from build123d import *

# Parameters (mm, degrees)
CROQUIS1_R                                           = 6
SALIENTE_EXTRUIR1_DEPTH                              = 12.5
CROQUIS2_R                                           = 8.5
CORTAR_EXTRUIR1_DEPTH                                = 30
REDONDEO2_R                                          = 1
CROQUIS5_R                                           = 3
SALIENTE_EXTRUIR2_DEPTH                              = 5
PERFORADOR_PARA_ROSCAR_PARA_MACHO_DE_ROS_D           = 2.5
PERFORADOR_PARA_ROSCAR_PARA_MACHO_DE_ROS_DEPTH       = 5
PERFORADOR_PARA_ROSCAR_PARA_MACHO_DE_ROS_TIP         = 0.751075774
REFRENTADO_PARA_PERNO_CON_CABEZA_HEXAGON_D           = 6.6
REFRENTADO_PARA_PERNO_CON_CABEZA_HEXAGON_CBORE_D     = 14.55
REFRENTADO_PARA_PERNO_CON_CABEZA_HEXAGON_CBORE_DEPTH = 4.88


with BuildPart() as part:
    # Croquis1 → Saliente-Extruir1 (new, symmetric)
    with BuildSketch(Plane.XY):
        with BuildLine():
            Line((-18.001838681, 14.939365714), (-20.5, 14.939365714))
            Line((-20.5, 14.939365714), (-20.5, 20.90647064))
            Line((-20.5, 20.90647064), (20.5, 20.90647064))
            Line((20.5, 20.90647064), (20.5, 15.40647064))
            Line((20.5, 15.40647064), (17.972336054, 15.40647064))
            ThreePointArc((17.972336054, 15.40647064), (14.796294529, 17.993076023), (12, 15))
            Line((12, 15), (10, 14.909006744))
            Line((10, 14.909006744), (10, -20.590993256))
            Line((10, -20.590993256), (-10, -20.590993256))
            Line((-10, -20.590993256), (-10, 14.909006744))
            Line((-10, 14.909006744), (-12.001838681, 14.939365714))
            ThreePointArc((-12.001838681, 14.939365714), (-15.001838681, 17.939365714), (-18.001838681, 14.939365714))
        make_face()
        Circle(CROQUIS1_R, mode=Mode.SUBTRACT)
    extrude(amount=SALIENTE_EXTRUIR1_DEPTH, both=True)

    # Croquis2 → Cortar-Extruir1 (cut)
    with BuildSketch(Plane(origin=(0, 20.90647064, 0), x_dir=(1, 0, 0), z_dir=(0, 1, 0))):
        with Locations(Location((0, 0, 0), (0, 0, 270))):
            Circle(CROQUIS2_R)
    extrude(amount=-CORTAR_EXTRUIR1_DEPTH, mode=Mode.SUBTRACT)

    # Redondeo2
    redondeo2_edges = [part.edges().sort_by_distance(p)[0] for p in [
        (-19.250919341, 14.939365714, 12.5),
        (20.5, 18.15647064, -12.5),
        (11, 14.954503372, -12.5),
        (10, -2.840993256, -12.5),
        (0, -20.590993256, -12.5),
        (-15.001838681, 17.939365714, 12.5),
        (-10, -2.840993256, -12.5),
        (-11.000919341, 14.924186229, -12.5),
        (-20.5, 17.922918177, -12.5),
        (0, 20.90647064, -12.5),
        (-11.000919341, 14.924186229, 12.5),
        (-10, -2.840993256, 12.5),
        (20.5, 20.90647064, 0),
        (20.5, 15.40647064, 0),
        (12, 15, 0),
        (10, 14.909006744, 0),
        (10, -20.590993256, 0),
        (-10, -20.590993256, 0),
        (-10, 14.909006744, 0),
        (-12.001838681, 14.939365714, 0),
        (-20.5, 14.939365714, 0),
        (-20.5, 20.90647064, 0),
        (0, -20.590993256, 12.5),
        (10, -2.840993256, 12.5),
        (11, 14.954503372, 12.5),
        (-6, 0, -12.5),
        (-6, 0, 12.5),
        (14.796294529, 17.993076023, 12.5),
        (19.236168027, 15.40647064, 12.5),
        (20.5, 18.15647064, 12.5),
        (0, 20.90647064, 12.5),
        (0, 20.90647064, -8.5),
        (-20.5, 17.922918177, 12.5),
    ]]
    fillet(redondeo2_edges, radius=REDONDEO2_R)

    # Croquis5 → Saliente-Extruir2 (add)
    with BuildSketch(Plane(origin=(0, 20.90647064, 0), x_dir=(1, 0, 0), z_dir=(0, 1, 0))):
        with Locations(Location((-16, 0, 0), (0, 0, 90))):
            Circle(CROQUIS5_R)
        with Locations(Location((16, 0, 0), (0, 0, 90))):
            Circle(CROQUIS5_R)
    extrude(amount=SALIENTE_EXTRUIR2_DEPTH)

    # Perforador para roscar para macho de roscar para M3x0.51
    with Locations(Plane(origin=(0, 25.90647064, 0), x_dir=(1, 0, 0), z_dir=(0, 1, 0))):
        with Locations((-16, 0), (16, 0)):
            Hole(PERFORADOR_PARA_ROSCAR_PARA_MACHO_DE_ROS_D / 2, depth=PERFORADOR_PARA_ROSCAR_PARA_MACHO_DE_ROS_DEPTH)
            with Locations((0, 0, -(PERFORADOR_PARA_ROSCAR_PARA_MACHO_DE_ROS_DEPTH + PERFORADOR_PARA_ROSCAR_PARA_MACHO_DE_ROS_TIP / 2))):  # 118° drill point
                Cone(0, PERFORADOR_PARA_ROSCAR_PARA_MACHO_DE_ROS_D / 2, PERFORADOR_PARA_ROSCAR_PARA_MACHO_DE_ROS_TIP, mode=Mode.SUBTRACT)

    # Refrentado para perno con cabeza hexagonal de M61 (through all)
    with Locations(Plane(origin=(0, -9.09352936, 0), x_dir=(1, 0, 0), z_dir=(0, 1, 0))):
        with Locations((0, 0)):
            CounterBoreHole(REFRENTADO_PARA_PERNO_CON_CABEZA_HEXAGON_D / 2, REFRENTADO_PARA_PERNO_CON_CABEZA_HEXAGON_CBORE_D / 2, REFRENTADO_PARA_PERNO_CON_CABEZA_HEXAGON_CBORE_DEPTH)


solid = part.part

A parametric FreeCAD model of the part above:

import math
import FreeCAD as App
import Part
import Sketcher
from FreeCAD import Vector


def edges_at(feature, points):
    """Names of the edges that pass closest to the given points."""
    edges = feature.Shape.Edges
    near = lambda p: min(range(len(edges)), key=lambda i: edges[i].distToShape(Part.Vertex(*p))[0])
    return sorted({f"Edge{near(p) + 1}" for p in points})

doc = App.newDocument("Part")
body = doc.addObject("PartDesign::Body", "Body")

sketch1 = doc.addObject("Sketcher::SketchObject", "Sketch")
body.addObject(sketch1)
sketch1.AttachmentSupport = (doc.XY_Plane, [""])
sketch1.MapMode = "FlatFace"
sketch1.addGeometry(Part.LineSegment(Vector(-20.5, 14.939366, 0), Vector(-18.001839, 14.939366, 0)), False)
sketch1.addGeometry(Part.ArcOfCircle(Part.Circle(Vector(-15.001839, 14.939366, 0), Vector(0, 0, 1), 3), math.radians(0), math.radians(180)), False)
sketch1.addGeometry(Part.LineSegment(Vector(-12.001839, 14.939366, 0), Vector(-10, 14.909007, 0)), False)
sketch1.addGeometry(Part.LineSegment(Vector(-10, 14.909007, 0), Vector(-10, -20.590993, 0)), False)
sketch1.addGeometry(Part.LineSegment(Vector(-10, -20.590993, 0), Vector(10, -20.590993, 0)), False)
sketch1.addGeometry(Part.LineSegment(Vector(10, -20.590993, 0), Vector(10, 14.909007, 0)), False)
sketch1.addGeometry(Part.LineSegment(Vector(10, 14.909007, 0), Vector(12, 15, 0)), False)
sketch1.addGeometry(Part.ArcOfCircle(Part.Circle(Vector(15, 15, 0), Vector(0, 0, 1), 3), math.radians(7.786967), math.radians(180)), False)
sketch1.addGeometry(Part.LineSegment(Vector(17.972336, 15.406471, 0), Vector(20.5, 15.406471, 0)), False)
sketch1.addGeometry(Part.LineSegment(Vector(20.5, 15.406471, 0), Vector(20.5, 20.906471, 0)), False)
sketch1.addGeometry(Part.LineSegment(Vector(20.5, 20.906471, 0), Vector(-20.5, 20.906471, 0)), False)
sketch1.addGeometry(Part.LineSegment(Vector(-20.5, 20.906471, 0), Vector(-20.5, 14.939366, 0)), False)
sketch1.addGeometry(Part.Circle(Vector(0, 0, 0), Vector(0, 0, 1), 6), False)
sketch1.addConstraint(Sketcher.Constraint("Coincident", 0, 2, 1, 2))
sketch1.addConstraint(Sketcher.Constraint("Coincident", 1, 1, 2, 1))
sketch1.addConstraint(Sketcher.Constraint("Coincident", 2, 2, 3, 1))
sketch1.addConstraint(Sketcher.Constraint("Coincident", 3, 2, 4, 1))
sketch1.addConstraint(Sketcher.Constraint("Coincident", 4, 2, 5, 1))
sketch1.addConstraint(Sketcher.Constraint("Coincident", 5, 2, 6, 1))
sketch1.addConstraint(Sketcher.Constraint("Coincident", 6, 2, 7, 2))
sketch1.addConstraint(Sketcher.Constraint("Coincident", 7, 1, 8, 1))
sketch1.addConstraint(Sketcher.Constraint("Coincident", 8, 2, 9, 1))
sketch1.addConstraint(Sketcher.Constraint("Coincident", 9, 2, 10, 1))
sketch1.addConstraint(Sketcher.Constraint("Coincident", 10, 2, 11, 1))
sketch1.addConstraint(Sketcher.Constraint("Coincident", 11, 2, 0, 1))
sketch1.addConstraint(Sketcher.Constraint("Horizontal", 0))
sketch1.addConstraint(Sketcher.Constraint("Vertical", 3))
sketch1.addConstraint(Sketcher.Constraint("Horizontal", 4))
sketch1.addConstraint(Sketcher.Constraint("Vertical", 5))
sketch1.addConstraint(Sketcher.Constraint("Horizontal", 8))
sketch1.addConstraint(Sketcher.Constraint("Vertical", 9))
sketch1.addConstraint(Sketcher.Constraint("Horizontal", 10))
sketch1.addConstraint(Sketcher.Constraint("Vertical", 11))
sketch1.addConstraint(Sketcher.Constraint("Coincident", 12, 3, -1, 1))
sketch1.addConstraint(Sketcher.Constraint("Equal", 1, 7))
sketch1.addConstraint(Sketcher.Constraint("Symmetric", 2, 2, 5, 2, -2))
sketch1.addConstraint(Sketcher.Constraint("Horizontal", 1, 3, 0, 2))
sketch1.addConstraint(Sketcher.Constraint("Horizontal", 0, 2, 1, 1))
sketch1.addConstraint(Sketcher.Constraint("Horizontal", 7, 3, 6, 2))
sketch1.addConstraint(Sketcher.Constraint("Equal", 2, 6))
sketch1.addConstraint(Sketcher.Constraint("Diameter", 12, 12.0))
sketch1.addConstraint(Sketcher.Constraint("Radius", 1, 3.0))
sketch1.addConstraint(Sketcher.Constraint("DistanceX", 4, 1, 4, 2, 20.0))
sketch1.addConstraint(Sketcher.Constraint("DistanceX", 10, 2, 10, 1, 41.0))
sketch1.addConstraint(Sketcher.Constraint("DistanceY", 3, 2, 3, 1, 35.5))
sketch1.addConstraint(Sketcher.Constraint("DistanceY", 9, 1, 9, 2, 5.5))
sketch1.addConstraint(Sketcher.Constraint("DistanceX", -1, 1, 7, 3, 15.0))
sketch1.addConstraint(Sketcher.Constraint("DistanceY", -1, 1, 7, 3, 15.0))
sketch1.addConstraint(Sketcher.Constraint("DistanceX", -1, 1, 8, 2, 20.5))
sketch1.addConstraint(Sketcher.Constraint("DistanceX", 0, 1, 0, 2, 2.498161))
sketch1.addConstraint(Sketcher.Constraint("Distance", 2, 2.002069))
sketch1.addConstraint(Sketcher.Constraint("DistanceX", 8, 1, 8, 2, 2.527664))
pad1 = doc.addObject("PartDesign::Pad", "Pad")
body.addObject(pad1)
pad1.Profile = sketch1
pad1.Length = 25
pad1.Midplane = True

sketch2 = doc.addObject("Sketcher::SketchObject", "Sketch001")
body.addObject(sketch2)
sketch2.AttachmentSupport = (doc.XZ_Plane, [""])
sketch2.MapMode = "FlatFace"
sketch2.AttachmentOffset = App.Placement(Vector(0, 0, -20.906471), App.Rotation())
sketch2.addGeometry(Part.Circle(Vector(0, 0, 0), Vector(0, 0, 1), 8), False)
sketch2.addConstraint(Sketcher.Constraint("Coincident", 0, 3, -1, 1))
sketch2.addConstraint(Sketcher.Constraint("Diameter", 0, 17.0))
pocket1 = doc.addObject("PartDesign::Pocket", "Pocket")
body.addObject(pocket1)
pocket1.Profile = sketch2
pocket1.Length = 30
pocket1.Reversed = True
doc.recompute()

fillet = doc.addObject("PartDesign::Fillet", "Fillet")
body.addObject(fillet)
fillet.Base = (pocket1, edges_at(pocket1, [
    (-19.251, 14.939, 12.5),
    (20.5, 18.156, -12.5),
    (11, 14.955, -12.5),
    (10, -2.841, -12.5),
    (0, -20.591, -12.5),
    (-15.002, 17.939, 12.5),
    (-10, -2.841, -12.5),
    (-11.001, 14.924, -12.5),
    (-20.5, 17.923, -12.5),
    (0, 20.906, -12.5),
    (-11.001, 14.924, 12.5),
    (-10, -2.841, 12.5),
    (20.5, 20.906, 0),
    (20.5, 15.406, 0),
    (12, 15, 0),
    (10, 14.909, 0),
    (10, -20.591, 0),
    (-10, -20.591, 0),
    (-10, 14.909, 0),
    (-12.002, 14.939, 0),
    (-20.5, 14.939, 0),
    (-20.5, 20.906, 0),
    (0, -20.591, 12.5),
    (10, -2.841, 12.5),
    (11, 14.955, 12.5),
    (-6, 0, -12.5),
    (-6, 0, 12.5),
    (14.796, 17.993, 12.5),
    (19.236, 15.406, 12.5),
    (20.5, 18.156, 12.5),
    (0, 20.906, 12.5),
    (0, 20.906, -8.5),
    (-20.5, 17.923, 12.5),
]))
fillet.Radius = 1

sketch3 = doc.addObject("Sketcher::SketchObject", "Sketch002")
body.addObject(sketch3)
sketch3.AttachmentSupport = (doc.XZ_Plane, [""])
sketch3.MapMode = "FlatFace"
sketch3.AttachmentOffset = App.Placement(Vector(0, 0, -20.906471), App.Rotation())
sketch3.addGeometry(Part.Circle(Vector(-16, 0, 0), Vector(0, 0, 1), 3), False)
sketch3.addGeometry(Part.Circle(Vector(16, 0, 0), Vector(0, 0, 1), 3), False)
sketch3.addConstraint(Sketcher.Constraint("Equal", 0, 1))
sketch3.addConstraint(Sketcher.Constraint("Symmetric", 0, 3, 1, 3, -1, 1))
sketch3.addConstraint(Sketcher.Constraint("PointOnObject", 0, 3, -1))
sketch3.addConstraint(Sketcher.Constraint("Diameter", 0, 6.0))
sketch3.addConstraint(Sketcher.Constraint("DistanceX", 0, 3, -1, 1, 16.0))
pad2 = doc.addObject("PartDesign::Pad", "Pad001")
body.addObject(pad2)
pad2.Profile = sketch3
pad2.Length = 5
pad2.Reversed = True

sketch4 = doc.addObject("Sketcher::SketchObject", "Sketch003")
body.addObject(sketch4)
sketch4.AttachmentSupport = (doc.XZ_Plane, [""])
sketch4.MapMode = "FlatFace"
sketch4.AttachmentOffset = App.Placement(Vector(0, 0, -25.906471), App.Rotation())
sketch4.addGeometry(Part.Circle(Vector(-16, 0, 0), Vector(0, 0, 1), 1.2), False)
sketch4.addGeometry(Part.Circle(Vector(16, 0, 0), Vector(0, 0, 1), 1.2), False)
sketch4.addConstraint(Sketcher.Constraint("Equal", 0, 1))
sketch4.addConstraint(Sketcher.Constraint("Symmetric", 0, 3, 1, 3, -1, 1))
sketch4.addConstraint(Sketcher.Constraint("PointOnObject", 0, 3, -1))
sketch4.addConstraint(Sketcher.Constraint("Diameter", 0, 2.5))
sketch4.addConstraint(Sketcher.Constraint("DistanceX", 0, 3, -1, 1, 16.0))
doc.recompute()
hole = doc.addObject("PartDesign::Hole", "Hole")
body.addObject(hole)
hole.Profile = sketch4
hole.ThreadType = "None"
hole.Diameter = 2.5
hole.DepthType = "Dimension"
hole.Depth = 5
hole.DrillPoint = "Angled"
hole.DrillPointAngle = 118
hole.Reversed = True

sketch5 = doc.addObject("Sketcher::SketchObject", "Sketch004")
body.addObject(sketch5)
sketch5.AttachmentSupport = (doc.XZ_Plane, [""])
sketch5.MapMode = "FlatFace"
sketch5.AttachmentOffset = App.Placement(Vector(0, 0, 9.093529), App.Rotation())
sketch5.addGeometry(Part.Circle(Vector(0, 0, 0), Vector(0, 0, 1), 3.3), False)
sketch5.addConstraint(Sketcher.Constraint("Coincident", 0, 3, -1, 1))
sketch5.addConstraint(Sketcher.Constraint("Diameter", 0, 6.6))
doc.recompute()
hole2 = doc.addObject("PartDesign::Hole", "Hole001")
body.addObject(hole2)
hole2.Profile = sketch5
hole2.ThreadType = "None"
hole2.Diameter = 6.6
hole2.DepthType = "ThroughAll"
hole2.HoleCutType = "Counterbore"
hole2.HoleCutDiameter = 14.55
hole2.HoleCutDepth = 4.88
hole2.Reversed = True

doc.recompute()
